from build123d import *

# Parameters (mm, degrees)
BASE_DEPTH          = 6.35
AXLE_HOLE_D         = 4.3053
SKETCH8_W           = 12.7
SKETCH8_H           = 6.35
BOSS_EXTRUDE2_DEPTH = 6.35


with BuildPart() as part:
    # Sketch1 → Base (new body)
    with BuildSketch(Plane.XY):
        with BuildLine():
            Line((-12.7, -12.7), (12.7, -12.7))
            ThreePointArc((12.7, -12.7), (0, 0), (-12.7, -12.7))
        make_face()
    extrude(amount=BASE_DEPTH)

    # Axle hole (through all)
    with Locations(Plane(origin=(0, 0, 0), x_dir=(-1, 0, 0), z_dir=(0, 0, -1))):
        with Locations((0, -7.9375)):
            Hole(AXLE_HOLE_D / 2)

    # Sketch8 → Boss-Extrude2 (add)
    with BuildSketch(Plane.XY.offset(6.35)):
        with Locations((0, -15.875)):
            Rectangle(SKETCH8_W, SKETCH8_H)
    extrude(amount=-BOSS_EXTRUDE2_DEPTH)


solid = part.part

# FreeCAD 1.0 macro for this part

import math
import FreeCAD as App
import Part
import Sketcher
Q = App.Units.Quantity

doc = App.newDocument("Part")
body = doc.addObject("PartDesign::Body", "Body")

# Sketch on XY plane
sketch1 = body.newObject("Sketcher::SketchObject", "Sketch")
sketch1.AttachmentSupport = (doc.getObject("XY_Plane"), [""])
sketch1.MapMode = "FlatFace"
sketch1.addGeometry(Part.LineSegment(App.Vector(-13, -13, 0), App.Vector(13, -13, 0)), False)
sketch1.addGeometry(Part.ArcOfCircle(Part.Circle(App.Vector(0, -13, 0), App.Vector(0, 0, 1), 13), math.radians(0), math.radians(180)), False)
sketch1.addConstraint(Sketcher.Constraint("Coincident", 0, 1, 1, 2))
sketch1.addConstraint(Sketcher.Constraint("Coincident", 1, 1, 0, 2))
sketch1.addConstraint(Sketcher.Constraint("Horizontal", 0))
sketch1.addConstraint(Sketcher.Constraint("PointOnObject", 1, 3, -2))
sketch1.addConstraint(Sketcher.Constraint("Horizontal", 1, 3, 0, 1))
sketch1.addConstraint(Sketcher.Constraint("Radius", 1, Q("0.5 in")))
sketch1.addConstraint(Sketcher.Constraint("DistanceY", 1, 3, -1, 1, Q("0.5 in")))
pad1 = body.newObject("PartDesign::Pad", "Pad")
pad1.Profile = sketch1
pad1.Length = Q("0.25 in")

# Sketch on XY plane
sketch2 = body.newObject("Sketcher::SketchObject", "Sketch001")
sketch2.AttachmentSupport = (doc.getObject("XY_Plane"), [""])
sketch2.MapMode = "FlatFace"
sketch2.addGeometry(Part.Circle(App.Vector(0, -7.9, 0), App.Vector(0, 0, 1), 2.2), False)
sketch2.addConstraint(Sketcher.Constraint("PointOnObject", 0, 3, -2))
sketch2.addConstraint(Sketcher.Constraint("Diameter", 0, Q("0.1695 in")))
sketch2.addConstraint(Sketcher.Constraint("DistanceY", 0, 3, -1, 1, Q("0.3125 in")))
doc.recompute()
hole = body.newObject("PartDesign::Hole", "Hole")
hole.Profile = sketch2
hole.ThreadType = "None"
hole.Diameter = Q("0.1695 in")
hole.DepthType = "ThroughAll"
hole.Reversed = True

# Sketch on XY plane
sketch3 = body.newObject("Sketcher::SketchObject", "Sketch002")
sketch3.AttachmentSupport = (doc.getObject("XY_Plane"), [""])
sketch3.MapMode = "FlatFace"
sketch3.AttachmentOffset = App.Placement(App.Vector(0, 0, 0.25 * 25.4), App.Rotation())
sketch3.addGeometry(Part.LineSegment(App.Vector(-6, -13, 0), App.Vector(-6, -19, 0)), False)
sketch3.addGeometry(Part.LineSegment(App.Vector(-6, -19, 0), App.Vector(6, -19, 0)), False)
sketch3.addGeometry(Part.LineSegment(App.Vector(6, -19, 0), App.Vector(6, -13, 0)), False)
sketch3.addGeometry(Part.LineSegment(App.Vector(6, -13, 0), App.Vector(-6, -13, 0)), False)
sketch3.addConstraint(Sketcher.Constraint("Coincident", 0, 2, 1, 1))
sketch3.addConstraint(Sketcher.Constraint("Coincident", 1, 2, 2, 1))
sketch3.addConstraint(Sketcher.Constraint("Coincident", 2, 2, 3, 1))
sketch3.addConstraint(Sketcher.Constraint("Coincident", 3, 2, 0, 1))
sketch3.addConstraint(Sketcher.Constraint("Vertical", 0))
sketch3.addConstraint(Sketcher.Constraint("Horizontal", 1))
sketch3.addConstraint(Sketcher.Constraint("Vertical", 2))
sketch3.addConstraint(Sketcher.Constraint("Horizontal", 3))
sketch3.addConstraint(Sketcher.Constraint("DistanceX", 1, 1, 1, 2, Q("0.5 in")))
sketch3.addConstraint(Sketcher.Constraint("DistanceY", 0, 2, 0, 1, Q("0.25 in")))
sketch3.addConstraint(Sketcher.Constraint("DistanceY", 2, 2, -1, 1, Q("0.5 in")))
sketch3.addConstraint(Sketcher.Constraint("DistanceX", 0, 2, -1, 1, Q("0.25 in")))
pad2 = body.newObject("PartDesign::Pad", "Pad001")
pad2.Profile = sketch3
pad2.Length = Q("0.25 in")
pad2.Reversed = True

doc.recompute()
